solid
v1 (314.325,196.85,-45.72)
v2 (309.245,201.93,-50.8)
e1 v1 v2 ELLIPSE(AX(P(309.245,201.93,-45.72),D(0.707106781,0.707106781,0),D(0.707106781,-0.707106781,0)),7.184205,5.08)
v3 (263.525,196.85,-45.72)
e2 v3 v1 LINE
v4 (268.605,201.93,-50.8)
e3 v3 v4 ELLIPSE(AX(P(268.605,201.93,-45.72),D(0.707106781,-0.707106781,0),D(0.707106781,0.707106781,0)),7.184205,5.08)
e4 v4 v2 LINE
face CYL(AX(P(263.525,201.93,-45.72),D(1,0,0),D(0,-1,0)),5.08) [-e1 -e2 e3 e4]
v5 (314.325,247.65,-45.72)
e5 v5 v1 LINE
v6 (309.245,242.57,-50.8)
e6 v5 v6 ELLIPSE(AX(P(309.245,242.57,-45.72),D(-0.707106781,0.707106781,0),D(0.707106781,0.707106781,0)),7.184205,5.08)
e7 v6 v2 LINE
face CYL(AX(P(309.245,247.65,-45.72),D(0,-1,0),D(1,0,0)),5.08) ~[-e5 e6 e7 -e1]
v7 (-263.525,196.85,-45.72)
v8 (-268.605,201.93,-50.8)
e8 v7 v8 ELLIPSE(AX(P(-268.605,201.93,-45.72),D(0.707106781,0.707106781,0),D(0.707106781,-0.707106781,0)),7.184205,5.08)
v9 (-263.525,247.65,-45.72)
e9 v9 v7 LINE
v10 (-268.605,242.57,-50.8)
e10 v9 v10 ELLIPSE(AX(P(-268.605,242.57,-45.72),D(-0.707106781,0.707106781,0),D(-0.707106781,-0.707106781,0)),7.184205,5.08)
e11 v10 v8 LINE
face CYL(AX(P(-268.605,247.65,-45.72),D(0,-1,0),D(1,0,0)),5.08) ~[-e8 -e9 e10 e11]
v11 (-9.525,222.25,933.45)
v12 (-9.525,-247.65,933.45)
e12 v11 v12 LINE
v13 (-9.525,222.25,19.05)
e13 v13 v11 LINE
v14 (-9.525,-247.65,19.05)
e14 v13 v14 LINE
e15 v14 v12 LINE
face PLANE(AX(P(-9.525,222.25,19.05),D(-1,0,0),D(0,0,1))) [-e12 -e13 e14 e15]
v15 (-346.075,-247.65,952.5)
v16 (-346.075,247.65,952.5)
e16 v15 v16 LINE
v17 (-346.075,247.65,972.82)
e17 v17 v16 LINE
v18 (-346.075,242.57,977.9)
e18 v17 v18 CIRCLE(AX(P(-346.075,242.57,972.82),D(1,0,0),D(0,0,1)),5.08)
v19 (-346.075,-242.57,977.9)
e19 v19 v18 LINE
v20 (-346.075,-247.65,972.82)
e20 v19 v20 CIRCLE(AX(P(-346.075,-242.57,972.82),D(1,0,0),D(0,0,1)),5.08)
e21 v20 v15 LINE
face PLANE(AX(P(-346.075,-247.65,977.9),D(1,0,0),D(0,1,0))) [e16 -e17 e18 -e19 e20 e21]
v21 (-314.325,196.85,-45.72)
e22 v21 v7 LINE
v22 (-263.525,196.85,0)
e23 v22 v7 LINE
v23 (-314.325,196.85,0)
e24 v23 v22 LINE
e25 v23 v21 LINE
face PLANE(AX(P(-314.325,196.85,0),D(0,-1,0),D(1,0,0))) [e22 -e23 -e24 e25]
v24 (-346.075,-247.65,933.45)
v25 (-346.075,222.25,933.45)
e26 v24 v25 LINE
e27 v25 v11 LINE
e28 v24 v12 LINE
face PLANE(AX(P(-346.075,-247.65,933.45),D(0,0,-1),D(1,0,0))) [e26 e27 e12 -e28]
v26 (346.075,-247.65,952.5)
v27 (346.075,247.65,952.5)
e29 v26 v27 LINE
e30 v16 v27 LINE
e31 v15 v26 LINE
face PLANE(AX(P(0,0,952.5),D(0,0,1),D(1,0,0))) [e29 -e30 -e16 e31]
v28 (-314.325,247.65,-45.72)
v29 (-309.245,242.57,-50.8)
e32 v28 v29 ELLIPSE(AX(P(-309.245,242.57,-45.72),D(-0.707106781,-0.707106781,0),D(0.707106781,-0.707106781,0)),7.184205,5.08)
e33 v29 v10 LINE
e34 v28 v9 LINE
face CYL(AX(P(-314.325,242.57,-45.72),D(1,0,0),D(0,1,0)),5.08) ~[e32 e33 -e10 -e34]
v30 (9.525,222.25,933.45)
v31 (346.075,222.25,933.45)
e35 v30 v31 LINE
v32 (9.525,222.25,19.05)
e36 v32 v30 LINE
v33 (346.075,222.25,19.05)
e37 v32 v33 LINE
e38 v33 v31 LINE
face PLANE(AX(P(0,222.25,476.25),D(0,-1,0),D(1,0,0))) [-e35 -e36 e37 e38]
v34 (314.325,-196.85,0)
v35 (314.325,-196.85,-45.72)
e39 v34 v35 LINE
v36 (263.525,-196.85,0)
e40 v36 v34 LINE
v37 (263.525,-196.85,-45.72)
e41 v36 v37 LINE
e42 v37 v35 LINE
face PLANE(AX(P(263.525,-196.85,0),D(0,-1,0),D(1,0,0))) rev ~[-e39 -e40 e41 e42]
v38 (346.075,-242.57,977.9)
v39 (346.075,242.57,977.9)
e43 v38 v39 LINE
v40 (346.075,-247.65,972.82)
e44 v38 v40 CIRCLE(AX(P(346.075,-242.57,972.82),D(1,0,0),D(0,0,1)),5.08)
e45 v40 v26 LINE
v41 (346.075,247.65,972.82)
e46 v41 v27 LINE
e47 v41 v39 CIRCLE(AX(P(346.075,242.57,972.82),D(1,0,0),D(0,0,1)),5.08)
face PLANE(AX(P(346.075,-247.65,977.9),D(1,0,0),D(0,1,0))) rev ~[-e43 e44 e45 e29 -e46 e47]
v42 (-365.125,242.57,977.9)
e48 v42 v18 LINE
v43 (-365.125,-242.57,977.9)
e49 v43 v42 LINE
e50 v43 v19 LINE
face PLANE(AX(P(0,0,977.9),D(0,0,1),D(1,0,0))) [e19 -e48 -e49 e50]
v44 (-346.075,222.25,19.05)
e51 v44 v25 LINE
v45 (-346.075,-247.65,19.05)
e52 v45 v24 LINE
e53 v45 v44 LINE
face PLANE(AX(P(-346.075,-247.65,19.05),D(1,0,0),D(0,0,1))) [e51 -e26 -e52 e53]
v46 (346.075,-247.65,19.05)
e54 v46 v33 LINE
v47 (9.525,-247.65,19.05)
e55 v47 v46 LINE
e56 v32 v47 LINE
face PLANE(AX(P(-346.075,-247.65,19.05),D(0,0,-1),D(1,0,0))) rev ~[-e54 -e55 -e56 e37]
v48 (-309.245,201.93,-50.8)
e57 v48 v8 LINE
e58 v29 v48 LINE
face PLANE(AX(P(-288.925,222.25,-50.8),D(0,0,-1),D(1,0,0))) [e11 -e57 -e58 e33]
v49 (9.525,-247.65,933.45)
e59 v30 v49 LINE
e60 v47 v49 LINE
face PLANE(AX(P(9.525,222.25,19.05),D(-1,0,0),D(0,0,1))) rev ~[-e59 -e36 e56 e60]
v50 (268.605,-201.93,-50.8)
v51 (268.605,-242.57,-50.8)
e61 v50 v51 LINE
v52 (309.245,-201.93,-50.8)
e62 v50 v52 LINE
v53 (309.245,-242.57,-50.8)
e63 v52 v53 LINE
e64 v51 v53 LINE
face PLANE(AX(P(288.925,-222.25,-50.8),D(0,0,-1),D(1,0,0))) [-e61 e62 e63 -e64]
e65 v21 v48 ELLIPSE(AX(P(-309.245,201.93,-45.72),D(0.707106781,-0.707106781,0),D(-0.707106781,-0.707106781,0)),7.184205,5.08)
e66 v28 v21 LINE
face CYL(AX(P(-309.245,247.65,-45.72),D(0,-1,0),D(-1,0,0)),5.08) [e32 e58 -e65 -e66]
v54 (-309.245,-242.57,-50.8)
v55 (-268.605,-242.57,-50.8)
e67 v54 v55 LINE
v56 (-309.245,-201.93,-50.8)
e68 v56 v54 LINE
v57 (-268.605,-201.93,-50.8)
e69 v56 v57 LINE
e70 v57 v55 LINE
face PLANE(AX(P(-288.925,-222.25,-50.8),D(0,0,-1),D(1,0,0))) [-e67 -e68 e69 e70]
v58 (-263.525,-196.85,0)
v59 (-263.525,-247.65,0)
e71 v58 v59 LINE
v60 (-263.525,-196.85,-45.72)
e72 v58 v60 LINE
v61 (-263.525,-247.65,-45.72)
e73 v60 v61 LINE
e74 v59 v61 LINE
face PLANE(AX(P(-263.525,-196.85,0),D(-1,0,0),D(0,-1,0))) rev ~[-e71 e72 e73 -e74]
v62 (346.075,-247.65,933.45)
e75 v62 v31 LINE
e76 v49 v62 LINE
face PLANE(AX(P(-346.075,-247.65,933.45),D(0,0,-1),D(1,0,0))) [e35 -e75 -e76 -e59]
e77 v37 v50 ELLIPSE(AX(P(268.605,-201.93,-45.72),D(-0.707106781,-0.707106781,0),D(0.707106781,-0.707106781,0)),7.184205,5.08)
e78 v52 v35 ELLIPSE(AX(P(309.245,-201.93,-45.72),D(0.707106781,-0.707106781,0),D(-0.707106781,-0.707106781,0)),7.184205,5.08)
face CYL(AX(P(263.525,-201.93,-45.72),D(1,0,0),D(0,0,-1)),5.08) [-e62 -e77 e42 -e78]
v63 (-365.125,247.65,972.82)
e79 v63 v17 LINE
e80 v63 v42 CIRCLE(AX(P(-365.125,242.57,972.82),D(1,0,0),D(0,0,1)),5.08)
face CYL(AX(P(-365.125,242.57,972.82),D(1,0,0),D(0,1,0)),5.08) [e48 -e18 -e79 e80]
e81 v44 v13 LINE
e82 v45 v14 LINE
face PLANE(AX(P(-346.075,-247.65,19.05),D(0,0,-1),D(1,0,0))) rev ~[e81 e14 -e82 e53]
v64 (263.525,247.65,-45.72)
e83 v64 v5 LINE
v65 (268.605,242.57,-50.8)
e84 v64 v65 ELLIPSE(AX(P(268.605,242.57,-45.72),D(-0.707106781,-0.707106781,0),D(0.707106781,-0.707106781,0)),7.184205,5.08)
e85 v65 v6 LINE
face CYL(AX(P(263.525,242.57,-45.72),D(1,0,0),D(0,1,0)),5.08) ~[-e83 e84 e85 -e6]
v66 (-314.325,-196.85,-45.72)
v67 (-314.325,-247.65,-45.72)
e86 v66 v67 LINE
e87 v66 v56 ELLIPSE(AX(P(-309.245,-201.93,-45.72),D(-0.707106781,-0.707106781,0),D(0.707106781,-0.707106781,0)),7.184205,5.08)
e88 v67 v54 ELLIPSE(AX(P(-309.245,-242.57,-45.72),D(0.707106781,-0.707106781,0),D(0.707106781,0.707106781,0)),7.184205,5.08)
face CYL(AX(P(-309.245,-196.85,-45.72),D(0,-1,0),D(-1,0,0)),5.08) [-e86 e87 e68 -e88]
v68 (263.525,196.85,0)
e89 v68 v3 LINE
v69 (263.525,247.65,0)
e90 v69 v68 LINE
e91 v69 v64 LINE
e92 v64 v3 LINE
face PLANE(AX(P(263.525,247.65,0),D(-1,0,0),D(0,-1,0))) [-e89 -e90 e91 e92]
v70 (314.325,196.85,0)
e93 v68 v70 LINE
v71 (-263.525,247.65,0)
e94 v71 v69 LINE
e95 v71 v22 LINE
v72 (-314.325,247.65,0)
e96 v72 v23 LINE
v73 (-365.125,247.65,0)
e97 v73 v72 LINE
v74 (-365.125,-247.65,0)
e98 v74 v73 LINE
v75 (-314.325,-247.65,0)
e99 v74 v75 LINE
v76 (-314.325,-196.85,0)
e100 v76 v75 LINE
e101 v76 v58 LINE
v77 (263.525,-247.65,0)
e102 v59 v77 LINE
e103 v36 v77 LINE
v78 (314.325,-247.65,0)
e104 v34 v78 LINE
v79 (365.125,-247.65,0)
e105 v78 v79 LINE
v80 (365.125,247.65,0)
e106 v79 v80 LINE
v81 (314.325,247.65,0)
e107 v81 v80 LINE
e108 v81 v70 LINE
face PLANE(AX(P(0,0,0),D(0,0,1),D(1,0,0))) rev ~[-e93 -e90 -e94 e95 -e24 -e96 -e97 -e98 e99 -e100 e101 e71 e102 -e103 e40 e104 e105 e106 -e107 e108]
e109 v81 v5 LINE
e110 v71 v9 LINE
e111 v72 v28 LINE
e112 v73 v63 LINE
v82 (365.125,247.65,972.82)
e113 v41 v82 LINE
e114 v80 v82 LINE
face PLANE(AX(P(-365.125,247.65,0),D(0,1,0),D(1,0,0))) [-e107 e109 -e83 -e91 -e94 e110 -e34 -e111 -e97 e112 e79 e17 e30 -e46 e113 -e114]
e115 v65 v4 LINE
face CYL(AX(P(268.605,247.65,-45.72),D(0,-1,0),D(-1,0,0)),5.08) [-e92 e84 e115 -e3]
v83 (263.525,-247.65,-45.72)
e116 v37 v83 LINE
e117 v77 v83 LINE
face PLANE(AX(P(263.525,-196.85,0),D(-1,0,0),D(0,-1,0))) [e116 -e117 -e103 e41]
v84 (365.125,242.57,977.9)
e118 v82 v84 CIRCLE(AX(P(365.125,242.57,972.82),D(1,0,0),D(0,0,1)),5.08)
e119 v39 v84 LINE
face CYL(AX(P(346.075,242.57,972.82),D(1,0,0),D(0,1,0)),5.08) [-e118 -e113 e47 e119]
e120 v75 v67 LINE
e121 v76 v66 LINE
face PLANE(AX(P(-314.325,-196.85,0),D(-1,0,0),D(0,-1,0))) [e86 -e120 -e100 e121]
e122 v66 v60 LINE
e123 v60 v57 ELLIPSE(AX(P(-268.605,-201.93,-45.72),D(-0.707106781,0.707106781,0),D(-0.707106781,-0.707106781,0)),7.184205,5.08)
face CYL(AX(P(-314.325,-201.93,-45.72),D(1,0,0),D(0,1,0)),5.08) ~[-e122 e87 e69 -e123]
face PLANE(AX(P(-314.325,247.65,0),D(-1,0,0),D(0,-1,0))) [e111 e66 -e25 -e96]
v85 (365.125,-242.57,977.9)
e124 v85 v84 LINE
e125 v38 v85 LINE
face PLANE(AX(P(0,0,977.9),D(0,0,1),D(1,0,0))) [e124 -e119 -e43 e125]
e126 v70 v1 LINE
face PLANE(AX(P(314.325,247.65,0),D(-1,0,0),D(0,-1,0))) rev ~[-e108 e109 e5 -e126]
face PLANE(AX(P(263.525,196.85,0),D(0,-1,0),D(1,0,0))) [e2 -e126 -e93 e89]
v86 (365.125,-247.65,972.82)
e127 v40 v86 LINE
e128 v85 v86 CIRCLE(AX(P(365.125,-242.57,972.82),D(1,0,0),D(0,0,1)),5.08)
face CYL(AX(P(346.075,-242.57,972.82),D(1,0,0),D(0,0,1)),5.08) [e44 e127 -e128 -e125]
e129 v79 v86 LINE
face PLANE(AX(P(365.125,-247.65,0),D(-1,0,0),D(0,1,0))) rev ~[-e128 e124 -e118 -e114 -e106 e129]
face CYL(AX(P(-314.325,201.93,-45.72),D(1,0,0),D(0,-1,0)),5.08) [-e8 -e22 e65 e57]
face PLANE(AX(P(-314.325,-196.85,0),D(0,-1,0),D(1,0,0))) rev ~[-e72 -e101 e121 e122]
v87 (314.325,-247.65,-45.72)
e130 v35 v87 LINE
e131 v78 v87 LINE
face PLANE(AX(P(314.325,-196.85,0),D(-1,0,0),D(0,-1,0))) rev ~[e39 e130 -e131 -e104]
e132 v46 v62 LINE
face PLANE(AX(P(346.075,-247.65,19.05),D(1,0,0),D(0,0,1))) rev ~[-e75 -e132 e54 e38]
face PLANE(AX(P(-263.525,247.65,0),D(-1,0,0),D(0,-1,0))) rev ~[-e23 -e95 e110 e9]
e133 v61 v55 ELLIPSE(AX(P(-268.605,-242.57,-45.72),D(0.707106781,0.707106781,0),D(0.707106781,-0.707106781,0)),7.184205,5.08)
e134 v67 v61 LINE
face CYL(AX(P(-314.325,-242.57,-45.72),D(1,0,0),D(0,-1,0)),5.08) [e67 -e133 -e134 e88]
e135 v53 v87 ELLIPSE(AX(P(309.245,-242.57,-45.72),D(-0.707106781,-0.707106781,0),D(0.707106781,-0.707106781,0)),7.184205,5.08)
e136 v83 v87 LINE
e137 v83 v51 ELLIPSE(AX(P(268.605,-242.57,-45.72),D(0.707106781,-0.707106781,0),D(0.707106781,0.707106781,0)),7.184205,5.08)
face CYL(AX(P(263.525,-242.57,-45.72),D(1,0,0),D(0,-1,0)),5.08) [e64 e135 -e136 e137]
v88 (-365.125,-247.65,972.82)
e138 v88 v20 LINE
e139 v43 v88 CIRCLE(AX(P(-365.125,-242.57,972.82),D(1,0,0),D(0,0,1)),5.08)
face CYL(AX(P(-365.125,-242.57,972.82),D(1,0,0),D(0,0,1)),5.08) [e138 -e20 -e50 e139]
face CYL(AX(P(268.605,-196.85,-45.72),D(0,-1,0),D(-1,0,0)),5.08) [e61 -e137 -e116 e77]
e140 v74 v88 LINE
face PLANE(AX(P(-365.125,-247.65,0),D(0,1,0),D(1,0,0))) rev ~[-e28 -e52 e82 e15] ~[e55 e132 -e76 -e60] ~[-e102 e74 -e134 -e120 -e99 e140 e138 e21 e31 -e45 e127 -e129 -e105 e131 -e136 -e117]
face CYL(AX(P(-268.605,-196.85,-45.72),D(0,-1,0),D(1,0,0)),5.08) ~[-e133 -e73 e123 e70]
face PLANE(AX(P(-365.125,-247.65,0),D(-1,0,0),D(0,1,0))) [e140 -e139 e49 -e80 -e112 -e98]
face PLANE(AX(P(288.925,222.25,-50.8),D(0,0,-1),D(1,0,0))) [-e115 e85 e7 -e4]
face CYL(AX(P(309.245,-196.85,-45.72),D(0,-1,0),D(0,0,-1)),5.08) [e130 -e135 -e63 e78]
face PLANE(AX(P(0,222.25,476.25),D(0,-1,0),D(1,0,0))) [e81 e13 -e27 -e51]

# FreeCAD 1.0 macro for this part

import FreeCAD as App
import Part
import Sketcher
Q = App.Units.Quantity


def edges_at(feature, points):
    """Names of the edges that pass closest to the given points."""
    edges = feature.Shape.Edges
    near = lambda p: min(range(len(edges)), key=lambda i: edges[i].distToShape(Part.Vertex(*p))[0])
    return sorted({f"Edge{near(p) + 1}" for p in points})


def add_polygon(sketch, points):
    """Adds a closed chain of lines whose ends are joined by coincident constraints."""
    first, n = sketch.GeometryCount, len(points)
    for a, b in zip(points, points[1:] + points[:1]):
        sketch.addGeometry(Part.LineSegment(App.Vector(*a, 0), App.Vector(*b, 0)), False)
    for i in range(n):
        sketch.addConstraint(Sketcher.Constraint("Coincident", first + i, 2, first + (i + 1) % n, 1))

doc = App.newDocument("Part")
body = doc.addObject("PartDesign::Body", "Body")

sketch1 = body.newObject("Sketcher::SketchObject", "Sketch")
sketch1.AttachmentSupport = (doc.getObject("XY_Plane"), [""])
sketch1.MapMode = "FlatFace"
add_polygon(sketch1, [(-365.125, 247.65), (-365.125, -247.65), (365.125, -247.65), (365.125, 247.65)])
sketch1.addConstraint([
    Sketcher.Constraint("Vertical", 0),
    Sketcher.Constraint("Horizontal", 1),
    Sketcher.Constraint("Vertical", 2),
    Sketcher.Constraint("Horizontal", 3),
    Sketcher.Constraint("Symmetric", 0, 2, 2, 2, -1, 1),
    Sketcher.Constraint("DistanceY", 0, 2, 0, 1, Q("19.5 in")),
    Sketcher.Constraint("DistanceX", 1, 1, 1, 2, Q("28.75 in")),
])
pad1 = body.newObject("PartDesign::Pad", "Pad")
pad1.Profile = sketch1
pad1.Length = Q("38.5 in")

sketch2 = body.newObject("Sketcher::SketchObject", "Sketch001")
sketch2.AttachmentSupport = (doc.getObject("XY_Plane"), [""])
sketch2.MapMode = "FlatFace"
sketch2.AttachmentOffset = App.Placement(App.Vector(0, 0, 38.5 * 25.4), App.Rotation())
add_polygon(sketch2, [(-346.075, 247.65), (-346.075, -247.65), (346.075, -247.65), (346.075, 247.65)])
sketch2.addConstraint([
    Sketcher.Constraint("Vertical", 0),
    Sketcher.Constraint("Horizontal", 1),
    Sketcher.Constraint("Vertical", 2),
    Sketcher.Constraint("Horizontal", 3),
    Sketcher.Constraint("Symmetric", 0, 2, 2, 2, -1, 1),
    Sketcher.Constraint("DistanceY", 0, 2, 0, 1, Q("19.5 in")),
    Sketcher.Constraint("DistanceX", 1, 1, 1, 2, Q("27.25 in")),
])
pocket1 = body.newObject("PartDesign::Pocket", "Pocket")
pocket1.Profile = sketch2
pocket1.Length = Q("1 in")

sketch3 = body.newObject("Sketcher::SketchObject", "Sketch002")
sketch3.AttachmentSupport = (doc.getObject("XZ_Plane"), [""])
sketch3.MapMode = "FlatFace"
sketch3.AttachmentOffset = App.Placement(App.Vector(0, 0, 9.75 * 25.4), App.Rotation())
add_polygon(sketch3, [(-346.075, 933.45), (-346.075, 19.05), (346.075, 19.05), (346.075, 933.45)])
sketch3.addConstraint([
    Sketcher.Constraint("Vertical", 0),
    Sketcher.Constraint("Horizontal", 1),
    Sketcher.Constraint("Vertical", 2),
    Sketcher.Constraint("Horizontal", 3),
    Sketcher.Constraint("DistanceY", 0, 2, 0, 1, Q("36 in")),
    Sketcher.Constraint("DistanceX", 1, 1, 1, 2, Q("27.25 in")),
    Sketcher.Constraint("DistanceY", -1, 1, 0, 2, Q("0.75 in")),
    Sketcher.Constraint("DistanceX", 0, 2, -1, 1, Q("13.625 in")),
])
pocket2 = body.newObject("PartDesign::Pocket", "Pocket001")
pocket2.Profile = sketch3
pocket2.Length = Q("18.5 in")

sketch4 = body.newObject("Sketcher::SketchObject", "Sketch003")
sketch4.AttachmentSupport = (doc.getObject("XZ_Plane"), [""])
sketch4.MapMode = "FlatFace"
sketch4.AttachmentOffset = App.Placement(App.Vector(0, 0, -8.75 * 25.4), App.Rotation())
add_polygon(sketch4, [(-9.525, 933.45), (-9.525, 19.05), (9.525, 19.05), (9.525, 933.45)])
sketch4.addConstraint([
    Sketcher.Constraint("Vertical", 0),
    Sketcher.Constraint("Horizontal", 1),
    Sketcher.Constraint("Vertical", 2),
    Sketcher.Constraint("Horizontal", 3),
    Sketcher.Constraint("DistanceY", 0, 2, 0, 1, Q("36 in")),
    Sketcher.Constraint("DistanceX", 1, 1, 1, 2, Q("0.75 in")),
    Sketcher.Constraint("DistanceY", -1, 1, 0, 2, Q("0.75 in")),
    Sketcher.Constraint("DistanceX", 0, 2, -1, 1, Q("0.375 in")),
])
pad2 = body.newObject("PartDesign::Pad", "Pad001")
pad2.Profile = sketch4
pad2.Length = Q("18.5 in")

sketch5 = body.newObject("Sketcher::SketchObject", "Sketch004")
sketch5.AttachmentSupport = (doc.getObject("XY_Plane"), [""])
sketch5.MapMode = "FlatFace"
add_polygon(sketch5, [(263.525, -247.65), (263.525, -196.85), (314.325, -196.85), (314.325, -247.65)])
add_polygon(sketch5, [(263.525, 196.85), (263.525, 247.65), (314.325, 247.65), (314.325, 196.85)])
add_polygon(sketch5, [(-314.325, 196.85), (-314.325, 247.65), (-263.525, 247.65), (-263.525, 196.85)])
add_polygon(sketch5, [(-314.325, -247.65), (-314.325, -196.85), (-263.525, -196.85), (-263.525, -247.65)])
sketch5.addConstraint([
    Sketcher.Constraint("Vertical", 0),
    Sketcher.Constraint("Horizontal", 1),
    Sketcher.Constraint("Vertical", 2),
    Sketcher.Constraint("Horizontal", 3),
    Sketcher.Constraint("Vertical", 4),
    Sketcher.Constraint("Horizontal", 5),
    Sketcher.Constraint("Vertical", 6),
    Sketcher.Constraint("Horizontal", 7),
    Sketcher.Constraint("Vertical", 8),
    Sketcher.Constraint("Horizontal", 9),
    Sketcher.Constraint("Vertical", 10),
    Sketcher.Constraint("Horizontal", 11),
    Sketcher.Constraint("Vertical", 12),
    Sketcher.Constraint("Horizontal", 13),
    Sketcher.Constraint("Vertical", 14),
    Sketcher.Constraint("Horizontal", 15),
    Sketcher.Constraint("Symmetric", 2, 2, 8, 2, -1, 1),
    Sketcher.Constraint("Symmetric", 0, 2, 10, 2, -1, 1),
    Sketcher.Constraint("Symmetric", 6, 2, 12, 2, -1, 1),
    Sketcher.Constraint("Symmetric", 4, 2, 14, 2, -1, 1),
    Sketcher.Constraint("Symmetric", 5, 2, 8, 2, -2),
    Sketcher.Constraint("Symmetric", 7, 2, 10, 2, -2),
    Sketcher.Constraint("Equal", 15, 0),
    Sketcher.Constraint("DistanceX", 1, 1, 1, 2, Q("2 in")),
    Sketcher.Constraint("DistanceY", 0, 2, 4, 2, Q("17.5 in")),
    Sketcher.Constraint("DistanceX", 8, 2, 4, 2, Q("22.75 in")),
])
pad3 = body.newObject("PartDesign::Pad", "Pad002")
pad3.Profile = sketch5
pad3.Length = Q("2 in")
pad3.Reversed = True
doc.recompute()

fillet = body.newObject("PartDesign::Fillet", "Fillet")
fillet.Base = (pad3, edges_at(pad3, [
    (-263.525, -222.25, -50.8),
    (-288.925, -196.85, -50.8),
    (-288.925, -247.65, -50.8),
    (-314.325, -222.25, -50.8),
    (-314.325, 222.25, -50.8),
    (-288.925, 196.85, -50.8),
    (-263.525, 222.25, -50.8),
    (-288.925, 247.65, -50.8),
]))
fillet.Radius = Q("0.2 in")
doc.recompute()

fillet2 = body.newObject("PartDesign::Fillet", "Fillet001")
fillet2.Base = (fillet, edges_at(fillet, [
    (314.325, -222.25, -50.8),
    (288.925, -247.65, -50.8),
    (263.525, -222.25, -50.8),
    (288.925, -196.85, -50.8),
]))
fillet2.Radius = Q("0.2 in")
doc.recompute()

fillet3 = body.newObject("PartDesign::Fillet", "Fillet002")
fillet3.Base = (fillet2, edges_at(fillet2, [
    (288.925, 247.65, -50.8),
    (314.325, 222.25, -50.8),
    (288.925, 196.85, -50.8),
    (263.525, 222.25, -50.8),
]))
fillet3.Radius = Q("0.2 in")
doc.recompute()

fillet4 = body.newObject("PartDesign::Fillet", "Fillet003")
fillet4.Base = (fillet3, edges_at(fillet3, [
    (355.6, -247.65, 977.9),
    (-355.6, -247.65, 977.9),
    (355.6, 247.65, 977.9),
    (-355.6, 247.65, 977.9),
]))
fillet4.Radius = Q("0.2 in")

doc.recompute()
